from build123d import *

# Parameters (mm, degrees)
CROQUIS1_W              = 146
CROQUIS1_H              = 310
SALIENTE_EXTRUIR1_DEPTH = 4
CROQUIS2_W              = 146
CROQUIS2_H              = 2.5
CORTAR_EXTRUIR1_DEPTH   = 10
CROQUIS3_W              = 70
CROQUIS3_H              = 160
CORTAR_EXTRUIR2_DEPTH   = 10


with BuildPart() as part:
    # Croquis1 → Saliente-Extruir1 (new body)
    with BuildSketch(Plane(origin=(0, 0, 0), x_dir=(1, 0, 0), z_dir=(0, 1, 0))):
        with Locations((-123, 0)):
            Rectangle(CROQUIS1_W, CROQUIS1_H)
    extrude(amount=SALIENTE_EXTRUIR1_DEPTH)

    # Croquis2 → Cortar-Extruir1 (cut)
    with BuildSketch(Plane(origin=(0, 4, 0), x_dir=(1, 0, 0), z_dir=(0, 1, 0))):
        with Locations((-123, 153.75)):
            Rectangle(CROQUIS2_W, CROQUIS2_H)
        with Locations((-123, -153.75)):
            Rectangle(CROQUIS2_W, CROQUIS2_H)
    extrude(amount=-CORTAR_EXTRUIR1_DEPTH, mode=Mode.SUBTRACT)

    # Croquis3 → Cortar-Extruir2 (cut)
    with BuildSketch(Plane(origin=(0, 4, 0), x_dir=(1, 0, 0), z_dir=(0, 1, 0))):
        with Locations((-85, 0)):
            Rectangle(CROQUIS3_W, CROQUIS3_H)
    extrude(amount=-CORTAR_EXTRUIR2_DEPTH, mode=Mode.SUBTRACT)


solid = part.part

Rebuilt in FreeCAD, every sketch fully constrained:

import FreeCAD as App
import Part
import Sketcher
Q = App.Units.Quantity

doc = App.newDocument("Part")
body = doc.addObject("PartDesign::Body", "Body")

# Sketch on XZ plane
sketch1 = doc.addObject("Sketcher::SketchObject", "Sketch")
body.addObject(sketch1)
sketch1.AttachmentSupport = (doc.XZ_Plane, [""])
sketch1.MapMode = "FlatFace"
sketch1.addGeometry([
    Part.LineSegment(App.Vector(-196, -155, 0), App.Vector(-196, 155, 0)),
    Part.LineSegment(App.Vector(-196, 155, 0), App.Vector(-50, 155, 0)),
    Part.LineSegment(App.Vector(-50, 155, 0), App.Vector(-50, -155, 0)),
    Part.LineSegment(App.Vector(-50, -155, 0), App.Vector(-196, -155, 0)),
], False)
sketch1.addConstraint([
    Sketcher.Constraint("Coincident", 0, 2, 1, 1),
    Sketcher.Constraint("Coincident", 1, 2, 2, 1),
    Sketcher.Constraint("Coincident", 2, 2, 3, 1),
    Sketcher.Constraint("Coincident", 3, 2, 0, 1),
    Sketcher.Constraint("Vertical", 0),
    Sketcher.Constraint("Horizontal", 1),
    Sketcher.Constraint("Vertical", 2),
    Sketcher.Constraint("Horizontal", 3),
    Sketcher.Constraint("DistanceX", 1, 1, 1, 2, Q("146 mm")),
    Sketcher.Constraint("DistanceY", 0, 1, 0, 2, Q("310 mm")),
    Sketcher.Constraint("DistanceX", 0, 2, -1, 1, Q("196 mm")),
    Sketcher.Constraint("DistanceY", -1, 1, 0, 2, Q("155 mm")),
])
pad1 = doc.addObject("PartDesign::Pad", "Pad")
body.addObject(pad1)
pad1.Profile = sketch1
pad1.Length = 4
pad1.Reversed = True

# Sketch on XZ plane
sketch2 = doc.addObject("Sketcher::SketchObject", "Sketch001")
body.addObject(sketch2)
sketch2.AttachmentSupport = (doc.XZ_Plane, [""])
sketch2.MapMode = "FlatFace"
sketch2.AttachmentOffset = App.Placement(App.Vector(0, 0, -4), App.Rotation())
sketch2.addGeometry([
    Part.LineSegment(App.Vector(-196, -155, 0), App.Vector(-196, -152.5, 0)),  # 0
    Part.LineSegment(App.Vector(-196, -152.5, 0), App.Vector(-50, -152.5, 0)),  # 1
    Part.LineSegment(App.Vector(-50, -152.5, 0), App.Vector(-50, -155, 0)),  # 2
    Part.LineSegment(App.Vector(-50, -155, 0), App.Vector(-196, -155, 0)),  # 3
    Part.LineSegment(App.Vector(-196, 152.5, 0), App.Vector(-196, 155, 0)),  # 4
    Part.LineSegment(App.Vector(-196, 155, 0), App.Vector(-50, 155, 0)),  # 5
    Part.LineSegment(App.Vector(-50, 155, 0), App.Vector(-50, 152.5, 0)),  # 6
    Part.LineSegment(App.Vector(-50, 152.5, 0), App.Vector(-196, 152.5, 0)),  # 7
], False)
sketch2.addConstraint([
    Sketcher.Constraint("Coincident", 0, 2, 1, 1),
    Sketcher.Constraint("Coincident", 1, 2, 2, 1),
    Sketcher.Constraint("Coincident", 2, 2, 3, 1),
    Sketcher.Constraint("Coincident", 3, 2, 0, 1),
    Sketcher.Constraint("Coincident", 4, 2, 5, 1),
    Sketcher.Constraint("Coincident", 5, 2, 6, 1),
    Sketcher.Constraint("Coincident", 6, 2, 7, 1),
    Sketcher.Constraint("Coincident", 7, 2, 4, 1),
    Sketcher.Constraint("Vertical", 0),
    Sketcher.Constraint("Horizontal", 1),
    Sketcher.Constraint("Vertical", 2),
    Sketcher.Constraint("Horizontal", 3),
    Sketcher.Constraint("Vertical", 4),
    Sketcher.Constraint("Horizontal", 5),
    Sketcher.Constraint("Vertical", 6),
    Sketcher.Constraint("Horizontal", 7),
    Sketcher.Constraint("Symmetric", 3, 2, 4, 2, -1),
    Sketcher.Constraint("Symmetric", 1, 2, 6, 2, -1),
    Sketcher.Constraint("DistanceX", 1, 1, 1, 2, Q("146 mm")),
    Sketcher.Constraint("DistanceY", 0, 1, 0, 2, Q("2.5 mm")),
    Sketcher.Constraint("DistanceX", 0, 2, -1, 1, Q("196 mm")),
    Sketcher.Constraint("DistanceY", 2, 2, -1, 1, Q("155 mm")),
])
pocket1 = doc.addObject("PartDesign::Pocket", "Pocket")
body.addObject(pocket1)
pocket1.Profile = sketch2
pocket1.Length = 10
pocket1.Reversed = True

# Sketch on XZ plane
sketch3 = doc.addObject("Sketcher::SketchObject", "Sketch002")
body.addObject(sketch3)
sketch3.AttachmentSupport = (doc.XZ_Plane, [""])
sketch3.MapMode = "FlatFace"
sketch3.AttachmentOffset = App.Placement(App.Vector(0, 0, -4), App.Rotation())
sketch3.addGeometry([
    Part.LineSegment(App.Vector(-120, -80, 0), App.Vector(-120, 80, 0)),
    Part.LineSegment(App.Vector(-120, 80, 0), App.Vector(-50, 80, 0)),
    Part.LineSegment(App.Vector(-50, 80, 0), App.Vector(-50, -80, 0)),
    Part.LineSegment(App.Vector(-50, -80, 0), App.Vector(-120, -80, 0)),
], False)
sketch3.addConstraint([
    Sketcher.Constraint("Coincident", 0, 2, 1, 1),
    Sketcher.Constraint("Coincident", 1, 2, 2, 1),
    Sketcher.Constraint("Coincident", 2, 2, 3, 1),
    Sketcher.Constraint("Coincident", 3, 2, 0, 1),
    Sketcher.Constraint("Vertical", 0),
    Sketcher.Constraint("Horizontal", 1),
    Sketcher.Constraint("Vertical", 2),
    Sketcher.Constraint("Horizontal", 3),
    Sketcher.Constraint("DistanceX", 1, 1, 1, 2, Q("70 mm")),
    Sketcher.Constraint("DistanceY", 0, 1, 0, 2, Q("160 mm")),
    Sketcher.Constraint("DistanceX", 0, 2, -1, 1, Q("120 mm")),
    Sketcher.Constraint("DistanceY", -1, 1, 0, 2, Q("80 mm")),
])
pocket2 = doc.addObject("PartDesign::Pocket", "Pocket001")
body.addObject(pocket2)
pocket2.Profile = sketch3
pocket2.Length = 10
pocket2.Reversed = True

doc.recompute()
